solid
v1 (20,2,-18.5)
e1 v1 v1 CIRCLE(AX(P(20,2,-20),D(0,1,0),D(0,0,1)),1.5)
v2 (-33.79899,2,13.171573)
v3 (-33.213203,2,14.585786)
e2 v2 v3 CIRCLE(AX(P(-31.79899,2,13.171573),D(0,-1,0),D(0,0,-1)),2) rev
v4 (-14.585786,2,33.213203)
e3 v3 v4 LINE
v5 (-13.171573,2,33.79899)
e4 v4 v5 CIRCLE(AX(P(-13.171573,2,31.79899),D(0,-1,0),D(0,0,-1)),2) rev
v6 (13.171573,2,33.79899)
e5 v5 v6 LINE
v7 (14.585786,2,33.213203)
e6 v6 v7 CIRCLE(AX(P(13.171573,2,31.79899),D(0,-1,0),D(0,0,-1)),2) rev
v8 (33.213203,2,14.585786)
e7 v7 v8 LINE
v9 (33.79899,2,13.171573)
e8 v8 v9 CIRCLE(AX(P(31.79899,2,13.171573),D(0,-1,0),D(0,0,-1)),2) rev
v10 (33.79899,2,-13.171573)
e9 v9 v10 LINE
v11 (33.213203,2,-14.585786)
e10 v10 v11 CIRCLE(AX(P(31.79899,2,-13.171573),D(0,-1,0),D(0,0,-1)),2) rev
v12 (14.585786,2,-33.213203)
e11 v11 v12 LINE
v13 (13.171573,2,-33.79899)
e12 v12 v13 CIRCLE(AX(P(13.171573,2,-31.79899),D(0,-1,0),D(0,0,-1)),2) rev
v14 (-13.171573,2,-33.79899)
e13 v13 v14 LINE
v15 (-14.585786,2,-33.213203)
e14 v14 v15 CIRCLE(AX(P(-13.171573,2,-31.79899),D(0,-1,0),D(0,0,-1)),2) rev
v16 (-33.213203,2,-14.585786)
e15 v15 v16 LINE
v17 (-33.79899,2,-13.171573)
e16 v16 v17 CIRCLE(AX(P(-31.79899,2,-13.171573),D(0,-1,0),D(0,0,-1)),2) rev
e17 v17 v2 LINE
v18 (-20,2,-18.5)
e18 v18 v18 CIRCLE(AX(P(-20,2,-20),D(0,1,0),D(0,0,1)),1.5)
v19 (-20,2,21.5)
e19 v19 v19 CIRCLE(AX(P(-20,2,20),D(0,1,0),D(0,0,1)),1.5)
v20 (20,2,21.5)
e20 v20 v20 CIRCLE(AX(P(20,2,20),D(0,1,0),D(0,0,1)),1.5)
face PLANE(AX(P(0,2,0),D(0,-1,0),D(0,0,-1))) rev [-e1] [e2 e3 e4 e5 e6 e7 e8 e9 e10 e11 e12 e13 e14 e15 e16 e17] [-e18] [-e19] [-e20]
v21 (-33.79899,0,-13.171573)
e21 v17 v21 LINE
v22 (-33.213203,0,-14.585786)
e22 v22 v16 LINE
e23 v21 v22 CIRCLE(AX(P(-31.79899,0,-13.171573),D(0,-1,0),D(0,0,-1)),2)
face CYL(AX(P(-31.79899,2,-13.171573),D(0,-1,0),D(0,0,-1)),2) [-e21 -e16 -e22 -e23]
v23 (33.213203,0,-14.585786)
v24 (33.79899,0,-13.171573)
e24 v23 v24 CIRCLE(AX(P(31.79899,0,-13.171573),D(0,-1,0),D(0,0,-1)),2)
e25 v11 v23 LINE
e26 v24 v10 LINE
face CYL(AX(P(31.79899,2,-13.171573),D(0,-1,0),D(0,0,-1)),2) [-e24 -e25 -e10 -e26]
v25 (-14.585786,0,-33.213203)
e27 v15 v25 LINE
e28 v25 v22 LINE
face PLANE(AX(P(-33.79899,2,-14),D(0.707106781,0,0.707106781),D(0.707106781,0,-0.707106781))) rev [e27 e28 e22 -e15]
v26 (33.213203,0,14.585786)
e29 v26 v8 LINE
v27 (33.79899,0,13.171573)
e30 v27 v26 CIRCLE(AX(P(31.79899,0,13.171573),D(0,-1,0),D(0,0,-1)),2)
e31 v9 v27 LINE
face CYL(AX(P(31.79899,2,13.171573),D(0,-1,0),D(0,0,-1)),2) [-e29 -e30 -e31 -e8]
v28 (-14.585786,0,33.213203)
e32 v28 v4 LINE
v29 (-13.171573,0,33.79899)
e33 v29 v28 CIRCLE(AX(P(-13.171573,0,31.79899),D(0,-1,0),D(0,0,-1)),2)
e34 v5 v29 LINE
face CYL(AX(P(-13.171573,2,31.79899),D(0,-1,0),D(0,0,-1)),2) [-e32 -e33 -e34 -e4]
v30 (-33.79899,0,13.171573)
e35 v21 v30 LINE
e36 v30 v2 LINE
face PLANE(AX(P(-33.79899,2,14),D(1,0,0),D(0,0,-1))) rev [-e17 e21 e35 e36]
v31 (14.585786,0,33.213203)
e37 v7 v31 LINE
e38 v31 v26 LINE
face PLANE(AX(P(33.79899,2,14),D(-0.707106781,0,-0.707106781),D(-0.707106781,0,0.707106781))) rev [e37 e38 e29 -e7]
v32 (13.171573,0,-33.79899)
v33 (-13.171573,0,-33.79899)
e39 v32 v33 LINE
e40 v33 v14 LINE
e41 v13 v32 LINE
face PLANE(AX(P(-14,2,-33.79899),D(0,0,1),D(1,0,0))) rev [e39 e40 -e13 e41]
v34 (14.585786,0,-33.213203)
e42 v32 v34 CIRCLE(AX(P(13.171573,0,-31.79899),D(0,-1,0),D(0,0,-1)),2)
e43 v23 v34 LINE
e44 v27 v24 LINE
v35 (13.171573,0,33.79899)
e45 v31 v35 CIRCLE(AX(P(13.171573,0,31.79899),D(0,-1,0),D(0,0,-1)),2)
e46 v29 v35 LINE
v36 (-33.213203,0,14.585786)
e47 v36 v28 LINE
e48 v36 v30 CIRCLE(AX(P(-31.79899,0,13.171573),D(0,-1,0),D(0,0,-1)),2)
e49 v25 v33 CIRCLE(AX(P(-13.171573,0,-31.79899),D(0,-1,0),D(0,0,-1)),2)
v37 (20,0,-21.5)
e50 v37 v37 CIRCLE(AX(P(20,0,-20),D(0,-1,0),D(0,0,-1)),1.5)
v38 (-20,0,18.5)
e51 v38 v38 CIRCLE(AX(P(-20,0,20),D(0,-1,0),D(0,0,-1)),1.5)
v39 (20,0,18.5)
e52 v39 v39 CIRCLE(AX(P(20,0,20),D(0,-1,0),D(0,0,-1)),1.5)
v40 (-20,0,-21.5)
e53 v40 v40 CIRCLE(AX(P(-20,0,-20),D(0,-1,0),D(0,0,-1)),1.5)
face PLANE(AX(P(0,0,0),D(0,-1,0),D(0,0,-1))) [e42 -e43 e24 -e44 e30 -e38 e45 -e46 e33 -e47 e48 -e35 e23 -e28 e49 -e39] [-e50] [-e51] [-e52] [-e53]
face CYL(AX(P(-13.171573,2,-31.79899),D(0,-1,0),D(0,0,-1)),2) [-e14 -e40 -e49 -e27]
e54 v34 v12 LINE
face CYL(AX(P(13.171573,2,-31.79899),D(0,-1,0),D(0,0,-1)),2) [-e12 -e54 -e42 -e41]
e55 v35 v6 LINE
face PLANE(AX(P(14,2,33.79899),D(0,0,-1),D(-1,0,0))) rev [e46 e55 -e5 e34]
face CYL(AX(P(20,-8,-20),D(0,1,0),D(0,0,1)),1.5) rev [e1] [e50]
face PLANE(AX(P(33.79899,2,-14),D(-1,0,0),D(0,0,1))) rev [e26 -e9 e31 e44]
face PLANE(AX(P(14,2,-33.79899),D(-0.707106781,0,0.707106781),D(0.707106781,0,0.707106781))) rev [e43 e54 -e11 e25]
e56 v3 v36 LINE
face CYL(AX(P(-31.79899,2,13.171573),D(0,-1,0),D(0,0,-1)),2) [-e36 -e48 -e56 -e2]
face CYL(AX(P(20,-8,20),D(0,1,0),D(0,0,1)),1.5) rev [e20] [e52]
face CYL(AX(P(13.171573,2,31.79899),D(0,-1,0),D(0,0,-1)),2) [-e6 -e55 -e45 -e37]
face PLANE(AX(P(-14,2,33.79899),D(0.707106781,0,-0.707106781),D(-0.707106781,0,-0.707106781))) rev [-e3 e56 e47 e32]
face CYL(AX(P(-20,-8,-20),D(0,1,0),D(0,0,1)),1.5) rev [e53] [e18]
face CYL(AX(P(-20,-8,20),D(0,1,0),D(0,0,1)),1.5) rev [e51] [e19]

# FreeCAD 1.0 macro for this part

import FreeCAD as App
import Part
import Sketcher


def edges_at(feature, points):
    """Names of the edges that pass closest to the given points."""
    edges = feature.Shape.Edges
    near = lambda p: min(range(len(edges)), key=lambda i: edges[i].distToShape(Part.Vertex(*p))[0])
    return sorted({f"Edge{near(p) + 1}" for p in points})


def add_polygon(sketch, points):
    """Adds a closed chain of lines whose ends are joined by coincident constraints."""
    first, n = sketch.GeometryCount, len(points)
    for a, b in zip(points, points[1:] + points[:1]):
        sketch.addGeometry(Part.LineSegment(App.Vector(*a, 0), App.Vector(*b, 0)), False)
    for i in range(n):
        sketch.addConstraint(Sketcher.Constraint("Coincident", first + i, 2, first + (i + 1) % n, 1))

doc = App.newDocument("Part")
params = doc.addObject("Spreadsheet::Sheet", "Params")
for row, (alias, value) in enumerate([
    ("sketch1_width", "28 mm"),
    ("sketch1_length", "28 mm"),
    ("pad1_length", "2 mm"),
    ("fillet_radius", "2 mm"),
    ("sketch2_diameter", "3 mm"),
    ("pocket1_length", "10 mm"),
], start=1):
    params.set(f"A{row}", alias)
    params.set(f"B{row}", "=" + value)
    params.setAlias(f"B{row}", alias)

body = doc.addObject("PartDesign::Body", "Body")

# Sketch on XZ plane
sketch1 = body.newObject("Sketcher::SketchObject", "Sketch")
sketch1.AttachmentSupport = (doc.getObject("XZ_Plane"), [""])
sketch1.MapMode = "FlatFace"
add_polygon(sketch1, [(14, -34), (-14, -34), (-34, -14), (-34, 14), (-14, 34), (14, 34), (34, 14), (34, -14)])  # lines 0-7
sketch1.addConstraint(Sketcher.Constraint("Horizontal", 0))
sketch1.addConstraint(Sketcher.Constraint("Vertical", 2))
sketch1.addConstraint(Sketcher.Constraint("Horizontal", 4))
sketch1.addConstraint(Sketcher.Constraint("Vertical", 6))
sketch1.addConstraint(Sketcher.Constraint("Symmetric", 0, 2, 4, 2, -1, 1))
sketch1.addConstraint(Sketcher.Constraint("Symmetric", 1, 2, 5, 2, -1, 1))
sketch1.addConstraint(Sketcher.Constraint("Perpendicular", 1, 3))
sketch1.addConstraint(Sketcher.Constraint("Perpendicular", 5, 7))
sketch1.addConstraint(Sketcher.Constraint("Horizontal", 2, 2, 5, 2))
sketch1.addConstraint(Sketcher.Constraint("Horizontal", 1, 2, 6, 2))
sketch1.addConstraint(Sketcher.Constraint("Vertical", 0, 2, 3, 2))
sketch1.addConstraint(Sketcher.Constraint("Equal", 4, 2))
sketch1.addConstraint(Sketcher.Constraint("DistanceX", 0, 2, 0, 1, 28.0))
sketch1.addConstraint(Sketcher.Constraint("Distance", 1, 28.0))
sketch1.setExpression("Constraints[20]", "Params.sketch1_width")
sketch1.setExpression("Constraints[21]", "Params.sketch1_length")
pad1 = body.newObject("PartDesign::Pad", "Pad")
pad1.Profile = sketch1
pad1.setExpression("Length", "Params.pad1_length")
pad1.Reversed = True
doc.recompute()

fillet = body.newObject("PartDesign::Fillet", "Fillet")
fillet.Base = (pad1, edges_at(pad1, [
    (-14, 1, -33.799),
    (14, 1, -33.799),
    (33.799, 1, -14),
    (33.799, 1, 14),
    (14, 1, 33.799),
    (-14, 1, 33.799),
    (-33.799, 1, 14),
    (-33.799, 1, -14),
]))
fillet.setExpression("Radius", "Params.fillet_radius")

# Sketch on XZ plane
sketch2 = body.newObject("Sketcher::SketchObject", "Sketch001")
sketch2.AttachmentSupport = (doc.getObject("XZ_Plane"), [""])
sketch2.MapMode = "FlatFace"
sketch2.AttachmentOffset = App.Placement(App.Vector(0, 0, -2), App.Rotation())
sketch2.addGeometry(Part.Circle(App.Vector(-20, -20, 0), App.Vector(0, 0, 1), 1.5), False)
sketch2.addGeometry(Part.Circle(App.Vector(20, -20, 0), App.Vector(0, 0, 1), 1.5), False)
sketch2.addGeometry(Part.Circle(App.Vector(20, 20, 0), App.Vector(0, 0, 1), 1.5), False)
sketch2.addGeometry(Part.Circle(App.Vector(-20, 20, 0), App.Vector(0, 0, 1), 1.5), False)
sketch2.addConstraint(Sketcher.Constraint("Equal", 0, 1))
sketch2.addConstraint(Sketcher.Constraint("Equal", 1, 2))
sketch2.addConstraint(Sketcher.Constraint("Equal", 2, 3))
sketch2.addConstraint(Sketcher.Constraint("Symmetric", 0, 3, 2, 3, -1, 1))
sketch2.addConstraint(Sketcher.Constraint("Symmetric", 1, 3, 3, 3, -1, 1))
sketch2.addConstraint(Sketcher.Constraint("Symmetric", 0, 3, 1, 3, -2))
sketch2.addConstraint(Sketcher.Constraint("Diameter", 0, 3.0))
sketch2.addConstraint(Sketcher.Constraint("DistanceX", 0, 3, -1, 1, 20.0))
sketch2.addConstraint(Sketcher.Constraint("DistanceY", 0, 3, -1, 1, 20.0))
sketch2.setExpression("Constraints[6]", "Params.sketch2_diameter")
pocket1 = body.newObject("PartDesign::Pocket", "Pocket")
pocket1.Profile = sketch2
pocket1.setExpression("Length", "Params.pocket1_length")
pocket1.Reversed = True

doc.recompute()
